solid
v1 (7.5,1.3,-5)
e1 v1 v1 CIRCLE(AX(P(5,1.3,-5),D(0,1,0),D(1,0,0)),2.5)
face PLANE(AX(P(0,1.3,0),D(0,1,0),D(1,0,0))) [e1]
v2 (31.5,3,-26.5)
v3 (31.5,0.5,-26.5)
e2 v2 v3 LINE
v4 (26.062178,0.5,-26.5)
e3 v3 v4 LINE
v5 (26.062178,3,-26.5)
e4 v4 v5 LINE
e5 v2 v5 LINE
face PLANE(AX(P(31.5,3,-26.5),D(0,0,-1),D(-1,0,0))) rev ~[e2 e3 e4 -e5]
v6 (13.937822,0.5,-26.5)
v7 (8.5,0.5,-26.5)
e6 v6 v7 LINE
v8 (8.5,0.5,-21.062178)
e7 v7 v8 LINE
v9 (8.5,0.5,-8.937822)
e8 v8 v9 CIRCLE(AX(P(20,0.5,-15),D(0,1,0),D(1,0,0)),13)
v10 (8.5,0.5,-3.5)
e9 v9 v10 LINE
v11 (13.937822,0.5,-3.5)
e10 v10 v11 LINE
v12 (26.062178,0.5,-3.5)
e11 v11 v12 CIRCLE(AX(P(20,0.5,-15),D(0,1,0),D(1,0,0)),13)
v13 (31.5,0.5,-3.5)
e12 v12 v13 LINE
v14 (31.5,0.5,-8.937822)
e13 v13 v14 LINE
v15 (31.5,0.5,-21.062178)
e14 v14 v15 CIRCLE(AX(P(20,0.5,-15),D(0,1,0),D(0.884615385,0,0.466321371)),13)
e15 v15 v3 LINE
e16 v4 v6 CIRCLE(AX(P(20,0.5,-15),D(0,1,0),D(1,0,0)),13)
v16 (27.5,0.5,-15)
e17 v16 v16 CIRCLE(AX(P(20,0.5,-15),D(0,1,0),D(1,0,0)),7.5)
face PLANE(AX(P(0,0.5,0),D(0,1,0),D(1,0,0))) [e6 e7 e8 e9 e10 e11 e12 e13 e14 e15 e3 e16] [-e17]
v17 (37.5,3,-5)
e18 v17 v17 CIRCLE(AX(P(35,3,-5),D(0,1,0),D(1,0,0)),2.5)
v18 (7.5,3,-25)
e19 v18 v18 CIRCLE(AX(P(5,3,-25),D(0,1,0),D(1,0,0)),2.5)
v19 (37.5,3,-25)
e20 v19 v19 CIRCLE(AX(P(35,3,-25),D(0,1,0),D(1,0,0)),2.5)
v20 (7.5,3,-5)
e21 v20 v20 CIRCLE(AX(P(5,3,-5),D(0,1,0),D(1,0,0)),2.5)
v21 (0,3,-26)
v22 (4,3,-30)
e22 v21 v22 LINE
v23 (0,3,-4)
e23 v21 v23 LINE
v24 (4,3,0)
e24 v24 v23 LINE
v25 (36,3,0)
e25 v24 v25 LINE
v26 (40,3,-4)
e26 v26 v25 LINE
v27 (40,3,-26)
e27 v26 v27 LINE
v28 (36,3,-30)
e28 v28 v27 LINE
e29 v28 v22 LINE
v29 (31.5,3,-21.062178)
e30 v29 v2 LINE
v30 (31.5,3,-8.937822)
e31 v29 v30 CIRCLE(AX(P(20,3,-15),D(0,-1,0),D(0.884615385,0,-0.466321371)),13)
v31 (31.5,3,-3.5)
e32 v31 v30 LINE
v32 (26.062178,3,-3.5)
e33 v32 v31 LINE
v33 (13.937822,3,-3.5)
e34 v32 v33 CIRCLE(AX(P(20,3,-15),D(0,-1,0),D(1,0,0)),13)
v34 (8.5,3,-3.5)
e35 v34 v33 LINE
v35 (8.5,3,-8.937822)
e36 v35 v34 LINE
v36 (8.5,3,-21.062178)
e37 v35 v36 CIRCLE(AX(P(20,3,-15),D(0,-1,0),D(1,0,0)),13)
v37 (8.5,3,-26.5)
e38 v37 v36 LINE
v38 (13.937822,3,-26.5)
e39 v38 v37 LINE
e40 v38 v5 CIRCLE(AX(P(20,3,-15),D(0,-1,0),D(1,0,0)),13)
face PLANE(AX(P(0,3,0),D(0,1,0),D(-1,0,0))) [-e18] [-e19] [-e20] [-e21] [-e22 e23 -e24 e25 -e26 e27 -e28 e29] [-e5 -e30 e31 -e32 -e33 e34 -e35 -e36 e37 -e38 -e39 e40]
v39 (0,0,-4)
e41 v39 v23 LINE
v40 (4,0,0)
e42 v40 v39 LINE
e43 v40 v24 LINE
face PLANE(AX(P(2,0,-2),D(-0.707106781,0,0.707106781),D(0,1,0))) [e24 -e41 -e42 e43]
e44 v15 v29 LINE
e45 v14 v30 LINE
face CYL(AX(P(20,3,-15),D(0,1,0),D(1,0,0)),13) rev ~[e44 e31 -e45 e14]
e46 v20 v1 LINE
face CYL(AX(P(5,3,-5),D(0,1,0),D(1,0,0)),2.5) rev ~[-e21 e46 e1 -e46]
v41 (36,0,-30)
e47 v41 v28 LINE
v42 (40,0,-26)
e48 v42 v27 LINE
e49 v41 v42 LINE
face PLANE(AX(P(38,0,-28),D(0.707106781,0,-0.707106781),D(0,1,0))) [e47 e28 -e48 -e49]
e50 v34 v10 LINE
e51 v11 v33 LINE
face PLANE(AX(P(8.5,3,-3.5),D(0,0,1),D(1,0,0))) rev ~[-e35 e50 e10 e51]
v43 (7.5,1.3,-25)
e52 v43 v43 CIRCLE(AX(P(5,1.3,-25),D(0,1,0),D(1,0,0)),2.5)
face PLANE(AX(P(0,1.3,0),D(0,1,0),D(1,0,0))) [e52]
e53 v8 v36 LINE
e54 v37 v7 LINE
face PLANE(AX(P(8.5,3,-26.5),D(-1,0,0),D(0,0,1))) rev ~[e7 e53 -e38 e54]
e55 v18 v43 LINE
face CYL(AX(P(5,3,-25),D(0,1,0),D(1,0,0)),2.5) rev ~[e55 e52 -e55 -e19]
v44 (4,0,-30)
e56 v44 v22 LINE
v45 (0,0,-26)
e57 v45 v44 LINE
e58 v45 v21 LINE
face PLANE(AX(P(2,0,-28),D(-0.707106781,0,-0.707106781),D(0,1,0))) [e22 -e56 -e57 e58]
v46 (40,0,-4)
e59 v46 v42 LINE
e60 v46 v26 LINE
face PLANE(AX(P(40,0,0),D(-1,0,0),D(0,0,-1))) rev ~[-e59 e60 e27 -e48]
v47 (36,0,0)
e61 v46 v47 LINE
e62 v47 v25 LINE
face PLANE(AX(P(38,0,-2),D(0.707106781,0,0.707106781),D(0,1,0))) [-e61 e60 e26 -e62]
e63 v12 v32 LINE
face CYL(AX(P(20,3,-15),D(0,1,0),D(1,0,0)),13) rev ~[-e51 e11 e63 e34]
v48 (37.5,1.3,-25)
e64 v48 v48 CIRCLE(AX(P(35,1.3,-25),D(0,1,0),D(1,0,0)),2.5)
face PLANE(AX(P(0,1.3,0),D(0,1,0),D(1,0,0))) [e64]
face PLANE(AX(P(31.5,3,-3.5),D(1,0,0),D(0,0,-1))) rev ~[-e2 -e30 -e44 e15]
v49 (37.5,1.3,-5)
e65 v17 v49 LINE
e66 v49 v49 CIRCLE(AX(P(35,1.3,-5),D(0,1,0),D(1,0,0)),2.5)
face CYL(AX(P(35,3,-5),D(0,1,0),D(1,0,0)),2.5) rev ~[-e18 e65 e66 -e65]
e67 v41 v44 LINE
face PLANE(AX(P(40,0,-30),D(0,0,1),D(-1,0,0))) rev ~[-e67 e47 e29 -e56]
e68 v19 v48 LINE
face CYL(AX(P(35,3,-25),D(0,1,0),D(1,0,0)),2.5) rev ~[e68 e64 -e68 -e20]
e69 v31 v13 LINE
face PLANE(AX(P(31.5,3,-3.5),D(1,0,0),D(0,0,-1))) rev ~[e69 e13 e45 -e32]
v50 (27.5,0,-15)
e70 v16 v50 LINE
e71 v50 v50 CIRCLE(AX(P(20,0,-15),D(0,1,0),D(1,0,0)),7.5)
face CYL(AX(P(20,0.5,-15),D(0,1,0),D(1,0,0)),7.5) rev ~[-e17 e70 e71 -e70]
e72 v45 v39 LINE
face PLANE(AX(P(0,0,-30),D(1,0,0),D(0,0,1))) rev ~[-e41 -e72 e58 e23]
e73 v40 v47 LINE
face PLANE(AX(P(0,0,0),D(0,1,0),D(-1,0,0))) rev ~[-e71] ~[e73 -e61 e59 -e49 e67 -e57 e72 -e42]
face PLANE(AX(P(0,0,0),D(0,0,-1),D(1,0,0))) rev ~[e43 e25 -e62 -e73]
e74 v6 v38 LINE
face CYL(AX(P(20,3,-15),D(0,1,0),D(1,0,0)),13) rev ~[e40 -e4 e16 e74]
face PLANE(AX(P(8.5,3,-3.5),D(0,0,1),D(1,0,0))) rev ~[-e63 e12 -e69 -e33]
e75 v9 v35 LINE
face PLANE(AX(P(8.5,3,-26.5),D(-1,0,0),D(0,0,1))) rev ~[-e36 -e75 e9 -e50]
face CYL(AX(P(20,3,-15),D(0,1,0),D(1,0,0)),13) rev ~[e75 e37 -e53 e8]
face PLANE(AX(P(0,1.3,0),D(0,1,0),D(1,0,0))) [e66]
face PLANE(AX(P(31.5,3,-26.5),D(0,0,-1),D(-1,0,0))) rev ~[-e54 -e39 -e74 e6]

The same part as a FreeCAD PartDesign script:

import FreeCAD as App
import Part
import Sketcher


def edges_at(feature, points):
    """Names of the edges that pass closest to the given points."""
    edges = feature.Shape.Edges
    near = lambda p: min(range(len(edges)), key=lambda i: edges[i].distToShape(Part.Vertex(*p))[0])
    return sorted({f"Edge{near(p) + 1}" for p in points})


def add_polygon(sketch, points):
    """Adds a closed chain of lines whose ends are joined by coincident constraints."""
    first, n = sketch.GeometryCount, len(points)
    for a, b in zip(points, points[1:] + points[:1]):
        sketch.addGeometry(Part.LineSegment(App.Vector(*a, 0), App.Vector(*b, 0)), False)
    for i in range(n):
        sketch.addConstraint(Sketcher.Constraint("Coincident", first + i, 2, first + (i + 1) % n, 1))

doc = App.newDocument("Part")
body = doc.addObject("PartDesign::Body", "Body")

sketch1 = body.newObject("Sketcher::SketchObject", "Sketch")
sketch1.AttachmentSupport = (doc.getObject("XZ_Plane"), [""])
sketch1.MapMode = "FlatFace"
add_polygon(sketch1, [(0, -30), (0, 0), (40, 0), (40, -30)])
sketch1.addConstraint([
    Sketcher.Constraint("Vertical", 0),
    Sketcher.Constraint("Horizontal", 1),
    Sketcher.Constraint("Vertical", 2),
    Sketcher.Constraint("Horizontal", 3),
    Sketcher.Constraint("Coincident", 0, 2, -1, 1),
    Sketcher.Constraint("DistanceX", 1, 1, 1, 2, 40.0),
    Sketcher.Constraint("DistanceY", 0, 1, 0, 2, 30.0),
])
pad1 = body.newObject("PartDesign::Pad", "Pad")
pad1.Profile = sketch1
pad1.Length = 3
pad1.Reversed = True

sketch2 = body.newObject("Sketcher::SketchObject", "Sketch001")
sketch2.AttachmentSupport = (doc.getObject("XZ_Plane"), [""])
sketch2.MapMode = "FlatFace"
sketch2.AttachmentOffset = App.Placement(App.Vector(0, 0, -3), App.Rotation())
sketch2.addGeometry(Part.Circle(App.Vector(20, -15, 0), App.Vector(0, 0, 1), 13), False)
sketch2.addConstraint([
    Sketcher.Constraint("Diameter", 0, 26.0),
    Sketcher.Constraint("DistanceX", -1, 1, 0, 3, 20.0),
    Sketcher.Constraint("DistanceY", 0, 3, -1, 1, 15.0),
])
pocket1 = body.newObject("PartDesign::Pocket", "Pocket")
pocket1.Profile = sketch2
pocket1.Length = 2.5
pocket1.Reversed = True

sketch3 = body.newObject("Sketcher::SketchObject", "Sketch002")
sketch3.AttachmentSupport = (doc.getObject("XZ_Plane"), [""])
sketch3.MapMode = "FlatFace"
sketch3.AttachmentOffset = App.Placement(App.Vector(0, 0, -0.5), App.Rotation())
sketch3.addGeometry(Part.Circle(App.Vector(20, -15, 0), App.Vector(0, 0, 1), 7.5), False)
sketch3.addConstraint([
    Sketcher.Constraint("Diameter", 0, 15.0),
    Sketcher.Constraint("DistanceY", 0, 3, -1, 1, 15.0),
    Sketcher.Constraint("DistanceX", -1, 1, 0, 3, 20.0),
])
pocket2 = body.newObject("PartDesign::Pocket", "Pocket001")
pocket2.Profile = sketch3
pocket2.Length = 3.5
pocket2.Reversed = True

sketch4 = body.newObject("Sketcher::SketchObject", "Sketch003")
sketch4.AttachmentSupport = (doc.getObject("XZ_Plane"), [""])
sketch4.MapMode = "FlatFace"
sketch4.AttachmentOffset = App.Placement(App.Vector(0, 0, -3), App.Rotation())
sketch4.addGeometry([
    Part.Circle(App.Vector(5, -5, 0), App.Vector(0, 0, 1), 2.5),
    Part.Circle(App.Vector(5, -25, 0), App.Vector(0, 0, 1), 2.5),
    Part.Circle(App.Vector(35, -5, 0), App.Vector(0, 0, 1), 2.5),
    Part.Circle(App.Vector(35, -25, 0), App.Vector(0, 0, 1), 2.5),
], False)
sketch4.addConstraint([
    Sketcher.Constraint("Equal", 0, 1),
    Sketcher.Constraint("Equal", 1, 2),
    Sketcher.Constraint("Equal", 2, 3),
    Sketcher.Constraint("Horizontal", 0, 3, 2, 3),
    Sketcher.Constraint("Horizontal", 1, 3, 3, 3),
    Sketcher.Constraint("Vertical", 0, 3, 1, 3),
    Sketcher.Constraint("Vertical", 2, 3, 3, 3),
    Sketcher.Constraint("Diameter", 0, 5.0),
    Sketcher.Constraint("DistanceX", -1, 1, 0, 3, 5.0),
    Sketcher.Constraint("DistanceY", 0, 3, -1, 1, 5.0),
    Sketcher.Constraint("DistanceY", 1, 3, -1, 1, 25.0),
    Sketcher.Constraint("DistanceX", -1, 1, 2, 3, 35.0),
])
pocket3 = body.newObject("PartDesign::Pocket", "Pocket002")
pocket3.Profile = sketch4
pocket3.Length = 1.7
pocket3.Reversed = True
doc.recompute()

chamfer = body.newObject("PartDesign::Chamfer", "Chamfer")
chamfer.Base = (pocket3, edges_at(pocket3, [(40, 1.5, -30)]))
chamfer.Size = 4
doc.recompute()

chamfer2 = body.newObject("PartDesign::Chamfer", "Chamfer001")
chamfer2.Base = (chamfer, edges_at(chamfer, [(40, 1.5, 0)]))
chamfer2.Size = 4
doc.recompute()

chamfer3 = body.newObject("PartDesign::Chamfer", "Chamfer002")
chamfer3.Base = (chamfer2, edges_at(chamfer2, [(0, 1.5, 0)]))
chamfer3.Size = 4
doc.recompute()

chamfer4 = body.newObject("PartDesign::Chamfer", "Chamfer003")
chamfer4.Base = (chamfer3, edges_at(chamfer3, [(0, 1.5, -30)]))
chamfer4.Size = 4

sketch5 = body.newObject("Sketcher::SketchObject", "Sketch004")
sketch5.AttachmentSupport = (doc.getObject("XZ_Plane"), [""])
sketch5.MapMode = "FlatFace"
sketch5.AttachmentOffset = App.Placement(App.Vector(0, 0, -3), App.Rotation())
add_polygon(sketch5, [(8.5, -26.5), (8.5, -3.5), (31.5, -3.5), (31.5, -26.5)])
sketch5.addConstraint([
    Sketcher.Constraint("Vertical", 0),
    Sketcher.Constraint("Horizontal", 1),
    Sketcher.Constraint("Vertical", 2),
    Sketcher.Constraint("Horizontal", 3),
    Sketcher.Constraint("Equal", 3, 0),
    Sketcher.Constraint("DistanceX", 1, 1, 1, 2, 23.0),
    Sketcher.Constraint("DistanceX", -1, 1, 0, 2, 8.5),
    Sketcher.Constraint("DistanceY", 0, 2, -1, 1, 3.5),
])
pocket4 = body.newObject("PartDesign::Pocket", "Pocket003")
pocket4.Profile = sketch5
pocket4.Length = 2.5
pocket4.Reversed = True

doc.recompute()
